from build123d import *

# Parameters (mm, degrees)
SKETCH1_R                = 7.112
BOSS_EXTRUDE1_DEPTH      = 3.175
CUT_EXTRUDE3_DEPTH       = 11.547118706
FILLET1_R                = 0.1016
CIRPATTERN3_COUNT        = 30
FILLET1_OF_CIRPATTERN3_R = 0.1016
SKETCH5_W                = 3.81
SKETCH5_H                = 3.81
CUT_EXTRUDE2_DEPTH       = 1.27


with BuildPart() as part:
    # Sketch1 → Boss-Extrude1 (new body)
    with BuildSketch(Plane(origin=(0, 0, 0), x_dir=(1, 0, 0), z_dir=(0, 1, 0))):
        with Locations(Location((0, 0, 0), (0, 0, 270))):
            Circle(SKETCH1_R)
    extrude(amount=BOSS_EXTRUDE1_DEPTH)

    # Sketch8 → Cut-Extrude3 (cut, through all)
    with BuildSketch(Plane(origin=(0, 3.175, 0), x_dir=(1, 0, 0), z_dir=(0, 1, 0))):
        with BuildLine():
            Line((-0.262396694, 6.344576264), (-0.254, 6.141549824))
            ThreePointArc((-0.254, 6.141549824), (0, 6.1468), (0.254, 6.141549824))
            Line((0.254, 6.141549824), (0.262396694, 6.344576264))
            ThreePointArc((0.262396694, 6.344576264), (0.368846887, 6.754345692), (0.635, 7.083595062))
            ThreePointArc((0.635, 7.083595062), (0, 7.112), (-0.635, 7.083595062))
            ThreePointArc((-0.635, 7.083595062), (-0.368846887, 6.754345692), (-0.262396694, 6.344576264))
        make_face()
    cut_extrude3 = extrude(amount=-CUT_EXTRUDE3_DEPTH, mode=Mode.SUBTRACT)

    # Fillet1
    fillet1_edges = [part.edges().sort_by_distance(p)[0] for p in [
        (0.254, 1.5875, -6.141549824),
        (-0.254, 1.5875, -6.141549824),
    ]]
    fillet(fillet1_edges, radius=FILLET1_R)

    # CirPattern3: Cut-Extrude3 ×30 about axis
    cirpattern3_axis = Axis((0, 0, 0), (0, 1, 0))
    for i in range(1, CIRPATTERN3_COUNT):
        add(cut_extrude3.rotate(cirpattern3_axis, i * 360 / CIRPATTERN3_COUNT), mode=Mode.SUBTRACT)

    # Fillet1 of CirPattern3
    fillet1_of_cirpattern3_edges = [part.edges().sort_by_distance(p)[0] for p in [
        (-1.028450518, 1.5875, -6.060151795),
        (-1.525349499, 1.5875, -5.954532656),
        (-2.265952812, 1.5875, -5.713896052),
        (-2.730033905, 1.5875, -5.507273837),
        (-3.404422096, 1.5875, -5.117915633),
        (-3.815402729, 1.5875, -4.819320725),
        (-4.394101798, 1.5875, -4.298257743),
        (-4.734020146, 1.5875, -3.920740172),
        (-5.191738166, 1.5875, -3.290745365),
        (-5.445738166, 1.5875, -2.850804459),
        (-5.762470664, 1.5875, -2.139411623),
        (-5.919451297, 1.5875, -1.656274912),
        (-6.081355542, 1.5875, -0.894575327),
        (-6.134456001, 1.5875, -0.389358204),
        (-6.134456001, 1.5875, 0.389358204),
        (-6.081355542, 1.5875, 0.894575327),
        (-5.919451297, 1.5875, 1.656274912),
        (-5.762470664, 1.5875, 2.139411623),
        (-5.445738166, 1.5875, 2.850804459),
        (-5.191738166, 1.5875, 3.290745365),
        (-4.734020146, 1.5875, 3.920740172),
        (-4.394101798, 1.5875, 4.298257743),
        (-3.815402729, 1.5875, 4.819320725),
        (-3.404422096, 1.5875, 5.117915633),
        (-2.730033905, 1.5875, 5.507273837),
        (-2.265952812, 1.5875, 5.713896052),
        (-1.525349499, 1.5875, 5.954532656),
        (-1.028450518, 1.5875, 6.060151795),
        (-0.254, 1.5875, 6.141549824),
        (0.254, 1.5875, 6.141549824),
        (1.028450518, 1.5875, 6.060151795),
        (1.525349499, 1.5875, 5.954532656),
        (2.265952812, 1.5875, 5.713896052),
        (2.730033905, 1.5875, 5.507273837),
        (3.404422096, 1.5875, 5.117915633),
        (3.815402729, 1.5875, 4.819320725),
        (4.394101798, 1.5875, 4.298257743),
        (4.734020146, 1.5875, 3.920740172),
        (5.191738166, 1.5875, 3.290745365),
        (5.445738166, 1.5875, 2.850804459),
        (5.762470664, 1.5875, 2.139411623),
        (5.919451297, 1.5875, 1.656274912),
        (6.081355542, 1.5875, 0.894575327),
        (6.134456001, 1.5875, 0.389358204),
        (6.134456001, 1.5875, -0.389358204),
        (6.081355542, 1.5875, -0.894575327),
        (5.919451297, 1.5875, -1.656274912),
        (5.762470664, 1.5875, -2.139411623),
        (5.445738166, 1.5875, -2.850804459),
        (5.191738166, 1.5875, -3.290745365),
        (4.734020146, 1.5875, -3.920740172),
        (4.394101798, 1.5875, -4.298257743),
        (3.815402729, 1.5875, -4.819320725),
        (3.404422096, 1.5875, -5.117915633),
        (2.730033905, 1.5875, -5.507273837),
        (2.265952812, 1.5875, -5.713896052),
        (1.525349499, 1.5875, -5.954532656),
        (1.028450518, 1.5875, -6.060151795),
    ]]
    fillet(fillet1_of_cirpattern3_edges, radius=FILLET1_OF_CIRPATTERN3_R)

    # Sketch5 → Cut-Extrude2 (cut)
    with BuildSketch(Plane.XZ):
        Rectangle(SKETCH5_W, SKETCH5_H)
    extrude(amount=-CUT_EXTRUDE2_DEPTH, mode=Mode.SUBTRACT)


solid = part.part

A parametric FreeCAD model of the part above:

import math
import FreeCAD as App
import Part
import Sketcher
Q = App.Units.Quantity


def edges_at(feature, points):
    """Names of the edges that pass closest to the given points."""
    edges = feature.Shape.Edges
    near = lambda p: min(range(len(edges)), key=lambda i: edges[i].distToShape(Part.Vertex(*p))[0])
    return sorted({f"Edge{near(p) + 1}" for p in points})


def add_polygon(sketch, points):
    """Adds a closed chain of lines whose ends are joined by coincident constraints."""
    first, n = sketch.GeometryCount, len(points)
    for a, b in zip(points, points[1:] + points[:1]):
        sketch.addGeometry(Part.LineSegment(App.Vector(*a, 0), App.Vector(*b, 0)), False)
    for i in range(n):
        sketch.addConstraint(Sketcher.Constraint("Coincident", first + i, 2, first + (i + 1) % n, 1))

doc = App.newDocument("Part")
body = doc.addObject("PartDesign::Body", "Body")

# Sketch on XZ plane
sketch1 = body.newObject("Sketcher::SketchObject", "Sketch")
sketch1.AttachmentSupport = (doc.getObject("XZ_Plane"), [""])
sketch1.MapMode = "FlatFace"
sketch1.addGeometry(Part.Circle(App.Vector(0, 0, 0), App.Vector(0, 0, 1), 7), False)
sketch1.addConstraint([
    Sketcher.Constraint("Coincident", 0, 3, -1, 1),
    Sketcher.Constraint("Diameter", 0, Q("0.56 in")),
])
pad1 = body.newObject("PartDesign::Pad", "Pad")
pad1.Profile = sketch1
pad1.Length = Q("0.125 in")
pad1.Reversed = True

# Sketch on XZ plane
sketch2 = body.newObject("Sketcher::SketchObject", "Sketch001")
sketch2.AttachmentSupport = (doc.getObject("XZ_Plane"), [""])
sketch2.MapMode = "FlatFace"
sketch2.AttachmentOffset = App.Placement(App.Vector(0, 0, -0.125 * 25.4), App.Rotation())
sketch2.addGeometry([
    Part.LineSegment(App.Vector(-0.26, -6.34, 0), App.Vector(-0.25, -6.14, 0)),  # 0
    Part.ArcOfCircle(Part.Circle(App.Vector(0, 0, 0), App.Vector(0, 0, 1), 6.15), math.radians(-92.37), math.radians(-87.63)),  # 1
    Part.LineSegment(App.Vector(0.25, -6.14, 0), App.Vector(0.26, -6.34, 0)),  # 2
    Part.ArcOfCircle(Part.Circle(App.Vector(1.26, -6.3, 0), App.Vector(0, 0, 1), 1), math.radians(-178), math.radians(-129)),  # 3
    Part.ArcOfCircle(Part.Circle(App.Vector(0, 0, 0), App.Vector(0, 0, 1), 7.11), math.radians(-95.12), math.radians(-84.88)),  # 4
    Part.ArcOfCircle(Part.Circle(App.Vector(-1.26, -6.3, 0), App.Vector(0, 0, 1), 1), math.radians(-51), math.radians(-2)),  # 5
], False)
sketch2.addConstraint([
    Sketcher.Constraint("Coincident", 0, 2, 1, 1),
    Sketcher.Constraint("Coincident", 1, 2, 2, 1),
    Sketcher.Constraint("Tangent", 2, 2, 3, 1),
    Sketcher.Constraint("Coincident", 3, 2, 4, 2),
    Sketcher.Constraint("Coincident", 4, 1, 5, 1),
    Sketcher.Constraint("Tangent", 5, 2, 0, 1),
    Sketcher.Constraint("Coincident", 1, 3, -1, 1),
    Sketcher.Constraint("Coincident", 4, 3, -1, 1),
    Sketcher.Constraint("Equal", 3, 5),
    Sketcher.Constraint("Symmetric", 3, 3, 5, 3, -2),
    Sketcher.Constraint("Horizontal", 0, 2, 1, 2),
    Sketcher.Constraint("Radius", 4, Q("0.28 in")),
    Sketcher.Constraint("Radius", 1, Q("0.242 in")),
    Sketcher.Constraint("DistanceX", 0, 2, -1, 1, Q("0.01 in")),
    Sketcher.Constraint("DistanceX", 4, 1, 3, 2, Q("0.05 in")),
    Sketcher.Constraint("Distance", 0, Q("0.008 in")),
    Sketcher.Constraint("Radius", 3, Q("1.002177 mm")),
])
pocket1 = body.newObject("PartDesign::Pocket", "Pocket")
pocket1.Profile = sketch2
pocket1.Type = "ThroughAll"
pocket1.Reversed = True
doc.recompute()

fillet = body.newObject("PartDesign::Fillet", "Fillet")
fillet.Base = (pocket1, edges_at(pocket1, [(0.254, 1.587, -6.142), (-0.254, 1.587, -6.142)]))
fillet.Radius = Q("0.004 in")
doc.recompute()

polarpattern = body.newObject("PartDesign::PolarPattern", "PolarPattern")
polarpattern.Originals = [pocket1]
polarpattern.Axis = (doc.getObject("Y_Axis"), [""])
polarpattern.Angle = 360
polarpattern.Occurrences = 30
body.Tip = polarpattern
doc.recompute()

fillet2 = body.newObject("PartDesign::Fillet", "Fillet001")
fillet2.Base = (polarpattern, edges_at(polarpattern, [
    (-1.028, 1.587, -6.06),
    (-1.525, 1.587, -5.955),
    (-2.266, 1.587, -5.714),
    (-2.73, 1.587, -5.507),
    (-3.404, 1.587, -5.118),
    (-3.815, 1.587, -4.819),
    (-4.394, 1.587, -4.298),
    (-4.734, 1.587, -3.921),
    (-5.192, 1.587, -3.291),
    (-5.446, 1.587, -2.851),
    (-5.762, 1.587, -2.139),
    (-5.919, 1.587, -1.656),
    (-6.081, 1.587, -0.895),
    (-6.134, 1.587, -0.389),
    (-6.134, 1.587, 0.389),
    (-6.081, 1.587, 0.895),
    (-5.919, 1.587, 1.656),
    (-5.762, 1.587, 2.139),
    (-5.446, 1.587, 2.851),
    (-5.192, 1.587, 3.291),
    (-4.734, 1.587, 3.921),
    (-4.394, 1.587, 4.298),
    (-3.815, 1.587, 4.819),
    (-3.404, 1.587, 5.118),
    (-2.73, 1.587, 5.507),
    (-2.266, 1.587, 5.714),
    (-1.525, 1.587, 5.955),
    (-1.028, 1.587, 6.06),
    (-0.254, 1.587, 6.142),
    (0.254, 1.587, 6.142),
    (1.028, 1.587, 6.06),
    (1.525, 1.587, 5.955),
    (2.266, 1.587, 5.714),
    (2.73, 1.587, 5.507),
    (3.404, 1.587, 5.118),
    (3.815, 1.587, 4.819),
    (4.394, 1.587, 4.298),
    (4.734, 1.587, 3.921),
    (5.192, 1.587, 3.291),
    (5.446, 1.587, 2.851),
    (5.762, 1.587, 2.139),
    (5.919, 1.587, 1.656),
    (6.081, 1.587, 0.895),
    (6.134, 1.587, 0.389),
    (6.134, 1.587, -0.389),
    (6.081, 1.587, -0.895),
    (5.919, 1.587, -1.656),
    (5.762, 1.587, -2.139),
    (5.446, 1.587, -2.851),
    (5.192, 1.587, -3.291),
    (4.734, 1.587, -3.921),
    (4.394, 1.587, -4.298),
    (3.815, 1.587, -4.819),
    (3.404, 1.587, -5.118),
    (2.73, 1.587, -5.507),
    (2.266, 1.587, -5.714),
    (1.525, 1.587, -5.955),
    (1.028, 1.587, -6.06),
]))
fillet2.Radius = Q("0.004 in")

# Sketch on XZ plane
sketch3 = body.newObject("Sketcher::SketchObject", "Sketch002")
sketch3.AttachmentSupport = (doc.getObject("XZ_Plane"), [""])
sketch3.MapMode = "FlatFace"
add_polygon(sketch3, [(-1.9, 1.9), (-1.9, -1.9), (1.9, -1.9), (1.9, 1.9)])  # lines 0-3
sketch3.addConstraint([
    Sketcher.Constraint("Vertical", 0),
    Sketcher.Constraint("Horizontal", 1),
    Sketcher.Constraint("Vertical", 2),
    Sketcher.Constraint("Horizontal", 3),
    Sketcher.Constraint("Symmetric", 0, 2, 2, 2, -1, 1),
    Sketcher.Constraint("Equal", 3, 0),
    Sketcher.Constraint("DistanceX", 1, 1, 1, 2, Q("0.15 in")),
])
pocket2 = body.newObject("PartDesign::Pocket", "Pocket001")
pocket2.Profile = sketch3
pocket2.Length = Q("0.05 in")

doc.recompute()
